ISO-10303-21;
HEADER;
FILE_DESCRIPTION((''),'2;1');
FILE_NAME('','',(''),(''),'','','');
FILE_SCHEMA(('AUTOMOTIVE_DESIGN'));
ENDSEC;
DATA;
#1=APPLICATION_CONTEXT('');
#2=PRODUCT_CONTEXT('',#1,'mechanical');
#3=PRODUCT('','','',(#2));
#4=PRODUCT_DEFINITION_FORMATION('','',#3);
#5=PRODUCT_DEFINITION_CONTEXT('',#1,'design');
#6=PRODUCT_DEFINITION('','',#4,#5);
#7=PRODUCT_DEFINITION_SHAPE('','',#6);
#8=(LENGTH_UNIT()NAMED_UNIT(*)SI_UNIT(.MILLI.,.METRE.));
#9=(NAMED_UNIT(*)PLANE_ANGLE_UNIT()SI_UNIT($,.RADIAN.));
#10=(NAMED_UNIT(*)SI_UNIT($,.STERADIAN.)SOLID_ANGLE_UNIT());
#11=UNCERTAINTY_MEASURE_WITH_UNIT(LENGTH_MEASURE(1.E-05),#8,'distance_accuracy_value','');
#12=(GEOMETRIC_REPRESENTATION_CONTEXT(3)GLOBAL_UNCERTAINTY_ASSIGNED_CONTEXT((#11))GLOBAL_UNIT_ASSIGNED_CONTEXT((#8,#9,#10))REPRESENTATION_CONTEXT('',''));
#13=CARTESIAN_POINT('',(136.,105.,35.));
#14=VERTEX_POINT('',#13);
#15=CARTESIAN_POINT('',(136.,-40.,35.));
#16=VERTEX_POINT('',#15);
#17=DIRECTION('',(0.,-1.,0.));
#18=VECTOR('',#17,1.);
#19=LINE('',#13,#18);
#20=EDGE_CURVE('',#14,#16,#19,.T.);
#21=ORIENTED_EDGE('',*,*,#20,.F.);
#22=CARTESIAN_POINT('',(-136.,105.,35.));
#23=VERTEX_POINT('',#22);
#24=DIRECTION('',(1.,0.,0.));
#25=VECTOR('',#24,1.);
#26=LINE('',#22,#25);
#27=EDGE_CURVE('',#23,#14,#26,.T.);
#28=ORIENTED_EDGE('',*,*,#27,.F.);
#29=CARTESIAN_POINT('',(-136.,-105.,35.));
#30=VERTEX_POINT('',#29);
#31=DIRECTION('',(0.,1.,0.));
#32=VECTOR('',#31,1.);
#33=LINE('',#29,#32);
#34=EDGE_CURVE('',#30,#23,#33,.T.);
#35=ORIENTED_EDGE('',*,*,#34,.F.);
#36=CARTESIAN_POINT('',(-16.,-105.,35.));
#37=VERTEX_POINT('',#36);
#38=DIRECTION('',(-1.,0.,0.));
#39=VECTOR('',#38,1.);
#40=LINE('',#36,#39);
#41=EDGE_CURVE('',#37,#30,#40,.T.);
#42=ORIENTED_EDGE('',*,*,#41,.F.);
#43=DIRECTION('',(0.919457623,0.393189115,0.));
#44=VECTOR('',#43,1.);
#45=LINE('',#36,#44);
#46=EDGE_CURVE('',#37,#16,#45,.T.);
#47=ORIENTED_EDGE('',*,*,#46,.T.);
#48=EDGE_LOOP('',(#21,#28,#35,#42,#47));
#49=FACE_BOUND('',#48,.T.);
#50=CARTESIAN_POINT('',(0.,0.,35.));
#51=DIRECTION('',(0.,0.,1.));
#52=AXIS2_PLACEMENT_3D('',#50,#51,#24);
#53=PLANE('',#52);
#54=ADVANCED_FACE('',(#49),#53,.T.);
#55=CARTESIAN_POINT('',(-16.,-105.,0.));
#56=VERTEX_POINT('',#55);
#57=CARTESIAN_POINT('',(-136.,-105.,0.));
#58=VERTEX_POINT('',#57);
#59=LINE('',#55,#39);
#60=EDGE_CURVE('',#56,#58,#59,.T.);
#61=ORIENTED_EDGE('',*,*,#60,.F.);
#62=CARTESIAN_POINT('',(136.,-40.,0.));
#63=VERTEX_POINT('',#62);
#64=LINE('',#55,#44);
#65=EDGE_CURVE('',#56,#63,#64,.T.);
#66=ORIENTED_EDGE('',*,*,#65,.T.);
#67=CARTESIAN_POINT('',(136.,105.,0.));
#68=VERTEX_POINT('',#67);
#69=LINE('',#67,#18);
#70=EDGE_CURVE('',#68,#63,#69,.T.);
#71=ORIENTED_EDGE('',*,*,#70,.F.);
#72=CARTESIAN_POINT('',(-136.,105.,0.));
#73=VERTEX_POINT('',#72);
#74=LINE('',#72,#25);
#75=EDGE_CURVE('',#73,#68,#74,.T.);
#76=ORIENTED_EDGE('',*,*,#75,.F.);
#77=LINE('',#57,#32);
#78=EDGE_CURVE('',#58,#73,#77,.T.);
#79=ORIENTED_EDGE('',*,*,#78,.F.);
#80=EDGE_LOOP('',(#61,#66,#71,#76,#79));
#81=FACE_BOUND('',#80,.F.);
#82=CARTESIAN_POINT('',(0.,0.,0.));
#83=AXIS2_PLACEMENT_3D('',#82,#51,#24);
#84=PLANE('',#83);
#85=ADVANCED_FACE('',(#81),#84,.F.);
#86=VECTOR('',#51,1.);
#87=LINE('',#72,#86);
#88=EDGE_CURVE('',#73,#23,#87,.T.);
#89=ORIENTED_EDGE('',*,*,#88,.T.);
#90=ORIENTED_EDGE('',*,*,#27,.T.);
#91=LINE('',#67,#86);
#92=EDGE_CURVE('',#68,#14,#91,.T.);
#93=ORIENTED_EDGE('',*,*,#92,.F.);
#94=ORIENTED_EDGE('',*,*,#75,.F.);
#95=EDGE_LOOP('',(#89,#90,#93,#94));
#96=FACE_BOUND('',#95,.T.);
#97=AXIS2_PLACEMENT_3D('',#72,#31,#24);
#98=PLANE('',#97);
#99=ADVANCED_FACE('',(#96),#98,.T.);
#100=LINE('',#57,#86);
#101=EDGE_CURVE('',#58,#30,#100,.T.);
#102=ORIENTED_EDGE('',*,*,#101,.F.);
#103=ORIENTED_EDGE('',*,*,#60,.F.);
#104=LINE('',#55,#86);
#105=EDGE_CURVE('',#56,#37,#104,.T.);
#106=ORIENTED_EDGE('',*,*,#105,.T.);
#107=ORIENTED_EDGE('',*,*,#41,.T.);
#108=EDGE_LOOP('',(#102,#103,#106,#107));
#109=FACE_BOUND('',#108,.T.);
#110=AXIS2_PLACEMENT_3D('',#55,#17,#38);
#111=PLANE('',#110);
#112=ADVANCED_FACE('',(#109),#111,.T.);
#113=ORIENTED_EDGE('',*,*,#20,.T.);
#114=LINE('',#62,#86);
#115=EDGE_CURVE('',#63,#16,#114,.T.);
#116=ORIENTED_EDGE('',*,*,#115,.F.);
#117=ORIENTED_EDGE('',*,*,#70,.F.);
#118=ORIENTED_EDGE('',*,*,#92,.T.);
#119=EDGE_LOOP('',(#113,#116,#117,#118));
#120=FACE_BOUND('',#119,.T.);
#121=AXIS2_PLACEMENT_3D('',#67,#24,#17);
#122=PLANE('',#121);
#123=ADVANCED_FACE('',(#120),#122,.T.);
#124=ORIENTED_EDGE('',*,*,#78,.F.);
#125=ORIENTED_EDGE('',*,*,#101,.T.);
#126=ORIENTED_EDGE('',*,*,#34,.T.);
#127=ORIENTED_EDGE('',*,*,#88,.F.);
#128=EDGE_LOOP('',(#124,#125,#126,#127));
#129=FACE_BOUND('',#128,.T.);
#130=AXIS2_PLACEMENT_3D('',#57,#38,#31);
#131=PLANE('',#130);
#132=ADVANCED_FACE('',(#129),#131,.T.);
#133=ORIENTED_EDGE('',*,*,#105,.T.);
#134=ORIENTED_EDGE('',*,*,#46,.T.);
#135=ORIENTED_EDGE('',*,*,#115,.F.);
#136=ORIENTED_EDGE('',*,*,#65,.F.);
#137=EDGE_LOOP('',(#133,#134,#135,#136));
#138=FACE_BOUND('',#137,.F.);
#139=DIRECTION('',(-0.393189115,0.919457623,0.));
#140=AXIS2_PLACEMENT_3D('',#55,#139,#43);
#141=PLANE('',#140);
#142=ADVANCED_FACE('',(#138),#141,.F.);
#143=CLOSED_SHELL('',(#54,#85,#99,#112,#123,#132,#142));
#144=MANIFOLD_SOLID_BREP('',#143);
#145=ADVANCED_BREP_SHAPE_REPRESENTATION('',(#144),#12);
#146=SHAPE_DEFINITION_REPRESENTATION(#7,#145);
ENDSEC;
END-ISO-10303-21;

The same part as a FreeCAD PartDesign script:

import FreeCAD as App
import Part
import Sketcher
Q = App.Units.Quantity


def add_polygon(sketch, points):
    """Adds a closed chain of lines whose ends are joined by coincident constraints."""
    first, n = sketch.GeometryCount, len(points)
    for a, b in zip(points, points[1:] + points[:1]):
        sketch.addGeometry(Part.LineSegment(App.Vector(*a, 0), App.Vector(*b, 0)), False)
    for i in range(n):
        sketch.addConstraint(Sketcher.Constraint("Coincident", first + i, 2, first + (i + 1) % n, 1))

doc = App.newDocument("Part")
params = doc.addObject("Spreadsheet::Sheet", "Params")
for row, (alias, value) in enumerate([
    ("sketch1_width", "272 mm"),
    ("sketch1_width2", "120 mm"),
    ("sketch1_height", "210 mm"),
    ("sketch1_height2", "145 mm"),
    ("pad1_length", "35 mm"),
], start=1):
    params.set(f"A{row}", alias)
    params.set(f"B{row}", "=" + value)
    params.setAlias(f"B{row}", alias)

body = doc.addObject("PartDesign::Body", "Body")

# Sketch on XY plane
sketch1 = body.newObject("Sketcher::SketchObject", "Sketch")
sketch1.AttachmentSupport = (doc.getObject("XY_Plane"), [""])
sketch1.MapMode = "FlatFace"
add_polygon(sketch1, [(136, 105), (-136, 105), (-136, -105), (-16, -105), (136, -40)])  # lines 0-4
sketch1.addConstraint([
    Sketcher.Constraint("Horizontal", 0),
    Sketcher.Constraint("Vertical", 1),
    Sketcher.Constraint("Horizontal", 2),
    Sketcher.Constraint("Vertical", 4),
    Sketcher.Constraint("Symmetric", 1, 2, 4, 2, -1, 1),
    Sketcher.Constraint("DistanceX", 0, 2, 0, 1, Q("272 mm")),
    Sketcher.Constraint("DistanceX", 2, 1, 2, 2, Q("120 mm")),
    Sketcher.Constraint("DistanceY", 1, 2, 1, 1, Q("210 mm")),
    Sketcher.Constraint("DistanceY", 4, 1, 4, 2, Q("145 mm")),
])
sketch1.setExpression("Constraints[10]", "Params.sketch1_width")
sketch1.setExpression("Constraints[11]", "Params.sketch1_width2")
sketch1.setExpression("Constraints[12]", "Params.sketch1_height")
sketch1.setExpression("Constraints[13]", "Params.sketch1_height2")
pad1 = body.newObject("PartDesign::Pad", "Pad")
pad1.Profile = sketch1
pad1.setExpression("Length", "Params.pad1_length")

doc.recompute()
